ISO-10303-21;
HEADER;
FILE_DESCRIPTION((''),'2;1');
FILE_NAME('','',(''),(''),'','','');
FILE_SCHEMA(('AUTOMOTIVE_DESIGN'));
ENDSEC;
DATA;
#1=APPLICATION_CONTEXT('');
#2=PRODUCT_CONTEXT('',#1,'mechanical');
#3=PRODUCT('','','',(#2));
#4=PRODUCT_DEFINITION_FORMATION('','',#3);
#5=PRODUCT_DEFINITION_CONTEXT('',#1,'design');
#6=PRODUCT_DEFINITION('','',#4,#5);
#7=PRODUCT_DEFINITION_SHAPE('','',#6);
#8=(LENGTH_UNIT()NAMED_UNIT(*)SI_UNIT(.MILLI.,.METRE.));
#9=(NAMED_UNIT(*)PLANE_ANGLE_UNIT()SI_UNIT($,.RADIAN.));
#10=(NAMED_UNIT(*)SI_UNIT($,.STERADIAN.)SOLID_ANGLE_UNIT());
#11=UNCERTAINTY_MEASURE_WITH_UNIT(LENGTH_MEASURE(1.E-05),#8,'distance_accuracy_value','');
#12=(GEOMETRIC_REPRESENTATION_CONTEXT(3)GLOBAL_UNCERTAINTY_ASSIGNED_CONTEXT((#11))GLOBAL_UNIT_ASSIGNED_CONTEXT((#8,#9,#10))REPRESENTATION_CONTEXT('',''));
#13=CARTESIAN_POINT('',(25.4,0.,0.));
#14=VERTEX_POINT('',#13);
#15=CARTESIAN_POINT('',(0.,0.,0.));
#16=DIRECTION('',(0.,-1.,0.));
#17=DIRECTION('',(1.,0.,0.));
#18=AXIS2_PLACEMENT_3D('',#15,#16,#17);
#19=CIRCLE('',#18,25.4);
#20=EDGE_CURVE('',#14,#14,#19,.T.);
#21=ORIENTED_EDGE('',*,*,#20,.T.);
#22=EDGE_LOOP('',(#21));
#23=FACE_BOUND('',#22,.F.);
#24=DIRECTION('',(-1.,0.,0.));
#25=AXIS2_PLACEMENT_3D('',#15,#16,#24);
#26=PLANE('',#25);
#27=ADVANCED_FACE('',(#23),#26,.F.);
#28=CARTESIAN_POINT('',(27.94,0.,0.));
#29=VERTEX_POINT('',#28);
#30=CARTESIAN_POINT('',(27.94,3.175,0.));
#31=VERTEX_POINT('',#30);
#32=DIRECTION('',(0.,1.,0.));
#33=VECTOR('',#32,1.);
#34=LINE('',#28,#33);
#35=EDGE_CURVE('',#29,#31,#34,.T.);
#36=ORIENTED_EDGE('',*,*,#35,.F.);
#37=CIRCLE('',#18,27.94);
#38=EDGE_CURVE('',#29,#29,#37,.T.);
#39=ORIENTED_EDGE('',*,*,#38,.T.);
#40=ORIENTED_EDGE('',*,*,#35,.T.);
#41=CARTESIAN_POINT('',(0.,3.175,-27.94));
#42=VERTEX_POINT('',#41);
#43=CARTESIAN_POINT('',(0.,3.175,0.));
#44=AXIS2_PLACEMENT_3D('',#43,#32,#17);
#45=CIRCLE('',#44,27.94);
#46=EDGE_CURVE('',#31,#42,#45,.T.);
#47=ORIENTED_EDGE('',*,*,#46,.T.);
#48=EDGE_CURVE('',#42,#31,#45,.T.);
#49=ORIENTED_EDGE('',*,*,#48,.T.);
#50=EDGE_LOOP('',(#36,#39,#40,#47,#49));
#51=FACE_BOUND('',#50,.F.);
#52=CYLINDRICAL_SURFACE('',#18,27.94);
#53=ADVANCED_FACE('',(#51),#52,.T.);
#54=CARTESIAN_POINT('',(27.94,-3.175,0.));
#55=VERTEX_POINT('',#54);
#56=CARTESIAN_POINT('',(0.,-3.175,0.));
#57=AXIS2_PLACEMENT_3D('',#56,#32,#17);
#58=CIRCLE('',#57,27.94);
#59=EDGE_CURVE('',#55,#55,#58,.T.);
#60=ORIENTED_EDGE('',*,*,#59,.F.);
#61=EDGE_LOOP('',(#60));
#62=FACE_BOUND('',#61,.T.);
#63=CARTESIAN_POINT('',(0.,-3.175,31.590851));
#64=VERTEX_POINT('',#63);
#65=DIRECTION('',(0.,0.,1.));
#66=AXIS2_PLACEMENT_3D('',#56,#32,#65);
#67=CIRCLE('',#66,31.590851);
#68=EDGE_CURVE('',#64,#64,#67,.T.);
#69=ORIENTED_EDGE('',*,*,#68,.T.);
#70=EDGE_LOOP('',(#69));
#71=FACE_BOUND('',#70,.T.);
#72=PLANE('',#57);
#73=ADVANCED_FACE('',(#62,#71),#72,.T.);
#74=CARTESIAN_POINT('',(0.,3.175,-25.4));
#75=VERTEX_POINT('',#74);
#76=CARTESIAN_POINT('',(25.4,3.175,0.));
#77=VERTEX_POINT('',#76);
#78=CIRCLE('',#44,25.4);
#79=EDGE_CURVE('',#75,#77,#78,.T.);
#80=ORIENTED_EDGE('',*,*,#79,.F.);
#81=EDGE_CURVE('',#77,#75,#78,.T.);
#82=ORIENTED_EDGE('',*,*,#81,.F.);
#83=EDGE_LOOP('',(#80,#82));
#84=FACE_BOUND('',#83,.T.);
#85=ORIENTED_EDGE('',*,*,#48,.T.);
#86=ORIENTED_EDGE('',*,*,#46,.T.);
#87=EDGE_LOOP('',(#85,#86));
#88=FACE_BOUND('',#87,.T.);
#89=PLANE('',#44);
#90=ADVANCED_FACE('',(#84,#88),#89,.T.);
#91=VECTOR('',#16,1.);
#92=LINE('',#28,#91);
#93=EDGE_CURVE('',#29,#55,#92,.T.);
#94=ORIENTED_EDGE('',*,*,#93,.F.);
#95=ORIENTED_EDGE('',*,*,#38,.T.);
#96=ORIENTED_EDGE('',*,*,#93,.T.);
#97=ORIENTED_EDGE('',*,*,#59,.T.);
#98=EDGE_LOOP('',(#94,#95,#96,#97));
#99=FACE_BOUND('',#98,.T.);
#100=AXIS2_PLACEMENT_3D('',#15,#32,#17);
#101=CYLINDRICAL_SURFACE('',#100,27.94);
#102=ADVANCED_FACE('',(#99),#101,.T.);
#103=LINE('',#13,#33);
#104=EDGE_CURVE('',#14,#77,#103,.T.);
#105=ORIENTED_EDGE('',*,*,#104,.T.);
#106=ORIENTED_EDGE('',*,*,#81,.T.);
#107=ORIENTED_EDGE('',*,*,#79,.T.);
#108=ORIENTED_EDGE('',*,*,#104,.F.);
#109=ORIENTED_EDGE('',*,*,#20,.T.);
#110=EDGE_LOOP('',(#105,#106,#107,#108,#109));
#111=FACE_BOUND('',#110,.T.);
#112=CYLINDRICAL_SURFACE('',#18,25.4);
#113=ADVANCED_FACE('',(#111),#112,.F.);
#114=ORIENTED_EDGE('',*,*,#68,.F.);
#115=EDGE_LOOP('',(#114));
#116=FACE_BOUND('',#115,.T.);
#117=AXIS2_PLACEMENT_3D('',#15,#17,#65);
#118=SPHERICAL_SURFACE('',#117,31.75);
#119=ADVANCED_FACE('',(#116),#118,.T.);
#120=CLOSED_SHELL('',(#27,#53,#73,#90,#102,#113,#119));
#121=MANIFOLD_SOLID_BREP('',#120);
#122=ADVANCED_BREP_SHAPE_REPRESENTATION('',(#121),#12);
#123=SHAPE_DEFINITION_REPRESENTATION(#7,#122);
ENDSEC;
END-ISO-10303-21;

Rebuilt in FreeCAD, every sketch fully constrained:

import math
import FreeCAD as App
import Part
import Sketcher
from FreeCAD import Vector
Q = App.Units.Quantity

doc = App.newDocument("Part")
params = doc.addObject("Spreadsheet::Sheet", "Params")
for row, (alias, value) in enumerate([
    ("sketch1_radius", "1.25 in"),
    ("revolution_angle", "180 deg"),
    ("sketch2_diameter", "2 in"),
    ("sketch2_diameter2", "2.2 in"),
    ("pad1_length", "0.125 in"),
    ("sketch3_diameter", "2.5 in"),
    ("sketch3_diameter2", "2.2 in"),
    ("pocket1_length", "0.125 in"),
], start=1):
    params.set(f"A{row}", alias)
    params.set(f"B{row}", "=" + value)
    params.setAlias(f"B{row}", alias)

body = doc.addObject("PartDesign::Body", "Body")

# Sketch on XZ plane
sketch1 = body.newObject("Sketcher::SketchObject", "Sketch")
sketch1.AttachmentSupport = (doc.getObject("XZ_Plane"), [""])
sketch1.MapMode = "FlatFace"
sketch1.addGeometry([
    Part.LineSegment(Vector(32, 0, 0), Vector(-32, 0, 0)),
    Part.ArcOfCircle(Part.Circle(Vector(0, 0, 0), Vector(0, 0, 1), 32), math.radians(0), math.radians(180)),
], False)
sketch1.addConstraint([
    Sketcher.Constraint("Coincident", 0, 1, 1, 1),
    Sketcher.Constraint("Coincident", 1, 2, 0, 2),
    Sketcher.Constraint("Horizontal", 0),
    Sketcher.Constraint("Coincident", 1, 3, -1, 1),
    Sketcher.Constraint("PointOnObject", 0, 1, -1),
    Sketcher.Constraint("Radius", 1, Q("1.25 in")),
])
sketch1.setExpression("Constraints[5]", "Params.sketch1_radius")
revolution = body.newObject("PartDesign::Revolution", "Revolution")
revolution.Profile = sketch1
revolution.ReferenceAxis = (sketch1, ["H_Axis"])
revolution.setExpression("Angle", "Params.revolution_angle")

# Sketch on XZ plane
sketch2 = body.newObject("Sketcher::SketchObject", "Sketch001")
sketch2.AttachmentSupport = (doc.getObject("XZ_Plane"), [""])
sketch2.MapMode = "FlatFace"
sketch2.addGeometry([
    Part.Circle(Vector(0, 0, 0), Vector(0, 0, 1), 28),
    Part.Circle(Vector(0, 0, 0), Vector(0, 0, 1), 25),
], False)
sketch2.addConstraint([
    Sketcher.Constraint("Coincident", 0, 3, -1, 1),
    Sketcher.Constraint("Coincident", 1, 3, -1, 1),
    Sketcher.Constraint("Diameter", 1, Q("2 in")),
    Sketcher.Constraint("Diameter", 0, Q("2.2 in")),
])
sketch2.setExpression("Constraints[2]", "Params.sketch2_diameter")
sketch2.setExpression("Constraints[3]", "Params.sketch2_diameter2")
pad1 = body.newObject("PartDesign::Pad", "Pad")
pad1.Profile = sketch2
pad1.setExpression("Length", "Params.pad1_length")
pad1.Reversed = True

# Sketch on XZ plane
sketch3 = body.newObject("Sketcher::SketchObject", "Sketch002")
sketch3.AttachmentSupport = (doc.getObject("XZ_Plane"), [""])
sketch3.MapMode = "FlatFace"
sketch3.addGeometry([
    Part.Circle(Vector(0, 0, 0), Vector(0, 0, 1), 32),
    Part.Circle(Vector(0, 0, 0), Vector(0, 0, 1), 28),
], False)
sketch3.addConstraint([
    Sketcher.Constraint("Coincident", 0, 3, -1, 1),
    Sketcher.Constraint("Coincident", 1, 3, -1, 1),
    Sketcher.Constraint("Diameter", 0, Q("2.5 in")),
    Sketcher.Constraint("Diameter", 1, Q("2.2 in")),
])
sketch3.setExpression("Constraints[2]", "Params.sketch3_diameter")
sketch3.setExpression("Constraints[3]", "Params.sketch3_diameter2")
pocket1 = body.newObject("PartDesign::Pocket", "Pocket")
pocket1.Profile = sketch3
pocket1.setExpression("Length", "Params.pocket1_length")
pocket1.Reversed = True

doc.recompute()
